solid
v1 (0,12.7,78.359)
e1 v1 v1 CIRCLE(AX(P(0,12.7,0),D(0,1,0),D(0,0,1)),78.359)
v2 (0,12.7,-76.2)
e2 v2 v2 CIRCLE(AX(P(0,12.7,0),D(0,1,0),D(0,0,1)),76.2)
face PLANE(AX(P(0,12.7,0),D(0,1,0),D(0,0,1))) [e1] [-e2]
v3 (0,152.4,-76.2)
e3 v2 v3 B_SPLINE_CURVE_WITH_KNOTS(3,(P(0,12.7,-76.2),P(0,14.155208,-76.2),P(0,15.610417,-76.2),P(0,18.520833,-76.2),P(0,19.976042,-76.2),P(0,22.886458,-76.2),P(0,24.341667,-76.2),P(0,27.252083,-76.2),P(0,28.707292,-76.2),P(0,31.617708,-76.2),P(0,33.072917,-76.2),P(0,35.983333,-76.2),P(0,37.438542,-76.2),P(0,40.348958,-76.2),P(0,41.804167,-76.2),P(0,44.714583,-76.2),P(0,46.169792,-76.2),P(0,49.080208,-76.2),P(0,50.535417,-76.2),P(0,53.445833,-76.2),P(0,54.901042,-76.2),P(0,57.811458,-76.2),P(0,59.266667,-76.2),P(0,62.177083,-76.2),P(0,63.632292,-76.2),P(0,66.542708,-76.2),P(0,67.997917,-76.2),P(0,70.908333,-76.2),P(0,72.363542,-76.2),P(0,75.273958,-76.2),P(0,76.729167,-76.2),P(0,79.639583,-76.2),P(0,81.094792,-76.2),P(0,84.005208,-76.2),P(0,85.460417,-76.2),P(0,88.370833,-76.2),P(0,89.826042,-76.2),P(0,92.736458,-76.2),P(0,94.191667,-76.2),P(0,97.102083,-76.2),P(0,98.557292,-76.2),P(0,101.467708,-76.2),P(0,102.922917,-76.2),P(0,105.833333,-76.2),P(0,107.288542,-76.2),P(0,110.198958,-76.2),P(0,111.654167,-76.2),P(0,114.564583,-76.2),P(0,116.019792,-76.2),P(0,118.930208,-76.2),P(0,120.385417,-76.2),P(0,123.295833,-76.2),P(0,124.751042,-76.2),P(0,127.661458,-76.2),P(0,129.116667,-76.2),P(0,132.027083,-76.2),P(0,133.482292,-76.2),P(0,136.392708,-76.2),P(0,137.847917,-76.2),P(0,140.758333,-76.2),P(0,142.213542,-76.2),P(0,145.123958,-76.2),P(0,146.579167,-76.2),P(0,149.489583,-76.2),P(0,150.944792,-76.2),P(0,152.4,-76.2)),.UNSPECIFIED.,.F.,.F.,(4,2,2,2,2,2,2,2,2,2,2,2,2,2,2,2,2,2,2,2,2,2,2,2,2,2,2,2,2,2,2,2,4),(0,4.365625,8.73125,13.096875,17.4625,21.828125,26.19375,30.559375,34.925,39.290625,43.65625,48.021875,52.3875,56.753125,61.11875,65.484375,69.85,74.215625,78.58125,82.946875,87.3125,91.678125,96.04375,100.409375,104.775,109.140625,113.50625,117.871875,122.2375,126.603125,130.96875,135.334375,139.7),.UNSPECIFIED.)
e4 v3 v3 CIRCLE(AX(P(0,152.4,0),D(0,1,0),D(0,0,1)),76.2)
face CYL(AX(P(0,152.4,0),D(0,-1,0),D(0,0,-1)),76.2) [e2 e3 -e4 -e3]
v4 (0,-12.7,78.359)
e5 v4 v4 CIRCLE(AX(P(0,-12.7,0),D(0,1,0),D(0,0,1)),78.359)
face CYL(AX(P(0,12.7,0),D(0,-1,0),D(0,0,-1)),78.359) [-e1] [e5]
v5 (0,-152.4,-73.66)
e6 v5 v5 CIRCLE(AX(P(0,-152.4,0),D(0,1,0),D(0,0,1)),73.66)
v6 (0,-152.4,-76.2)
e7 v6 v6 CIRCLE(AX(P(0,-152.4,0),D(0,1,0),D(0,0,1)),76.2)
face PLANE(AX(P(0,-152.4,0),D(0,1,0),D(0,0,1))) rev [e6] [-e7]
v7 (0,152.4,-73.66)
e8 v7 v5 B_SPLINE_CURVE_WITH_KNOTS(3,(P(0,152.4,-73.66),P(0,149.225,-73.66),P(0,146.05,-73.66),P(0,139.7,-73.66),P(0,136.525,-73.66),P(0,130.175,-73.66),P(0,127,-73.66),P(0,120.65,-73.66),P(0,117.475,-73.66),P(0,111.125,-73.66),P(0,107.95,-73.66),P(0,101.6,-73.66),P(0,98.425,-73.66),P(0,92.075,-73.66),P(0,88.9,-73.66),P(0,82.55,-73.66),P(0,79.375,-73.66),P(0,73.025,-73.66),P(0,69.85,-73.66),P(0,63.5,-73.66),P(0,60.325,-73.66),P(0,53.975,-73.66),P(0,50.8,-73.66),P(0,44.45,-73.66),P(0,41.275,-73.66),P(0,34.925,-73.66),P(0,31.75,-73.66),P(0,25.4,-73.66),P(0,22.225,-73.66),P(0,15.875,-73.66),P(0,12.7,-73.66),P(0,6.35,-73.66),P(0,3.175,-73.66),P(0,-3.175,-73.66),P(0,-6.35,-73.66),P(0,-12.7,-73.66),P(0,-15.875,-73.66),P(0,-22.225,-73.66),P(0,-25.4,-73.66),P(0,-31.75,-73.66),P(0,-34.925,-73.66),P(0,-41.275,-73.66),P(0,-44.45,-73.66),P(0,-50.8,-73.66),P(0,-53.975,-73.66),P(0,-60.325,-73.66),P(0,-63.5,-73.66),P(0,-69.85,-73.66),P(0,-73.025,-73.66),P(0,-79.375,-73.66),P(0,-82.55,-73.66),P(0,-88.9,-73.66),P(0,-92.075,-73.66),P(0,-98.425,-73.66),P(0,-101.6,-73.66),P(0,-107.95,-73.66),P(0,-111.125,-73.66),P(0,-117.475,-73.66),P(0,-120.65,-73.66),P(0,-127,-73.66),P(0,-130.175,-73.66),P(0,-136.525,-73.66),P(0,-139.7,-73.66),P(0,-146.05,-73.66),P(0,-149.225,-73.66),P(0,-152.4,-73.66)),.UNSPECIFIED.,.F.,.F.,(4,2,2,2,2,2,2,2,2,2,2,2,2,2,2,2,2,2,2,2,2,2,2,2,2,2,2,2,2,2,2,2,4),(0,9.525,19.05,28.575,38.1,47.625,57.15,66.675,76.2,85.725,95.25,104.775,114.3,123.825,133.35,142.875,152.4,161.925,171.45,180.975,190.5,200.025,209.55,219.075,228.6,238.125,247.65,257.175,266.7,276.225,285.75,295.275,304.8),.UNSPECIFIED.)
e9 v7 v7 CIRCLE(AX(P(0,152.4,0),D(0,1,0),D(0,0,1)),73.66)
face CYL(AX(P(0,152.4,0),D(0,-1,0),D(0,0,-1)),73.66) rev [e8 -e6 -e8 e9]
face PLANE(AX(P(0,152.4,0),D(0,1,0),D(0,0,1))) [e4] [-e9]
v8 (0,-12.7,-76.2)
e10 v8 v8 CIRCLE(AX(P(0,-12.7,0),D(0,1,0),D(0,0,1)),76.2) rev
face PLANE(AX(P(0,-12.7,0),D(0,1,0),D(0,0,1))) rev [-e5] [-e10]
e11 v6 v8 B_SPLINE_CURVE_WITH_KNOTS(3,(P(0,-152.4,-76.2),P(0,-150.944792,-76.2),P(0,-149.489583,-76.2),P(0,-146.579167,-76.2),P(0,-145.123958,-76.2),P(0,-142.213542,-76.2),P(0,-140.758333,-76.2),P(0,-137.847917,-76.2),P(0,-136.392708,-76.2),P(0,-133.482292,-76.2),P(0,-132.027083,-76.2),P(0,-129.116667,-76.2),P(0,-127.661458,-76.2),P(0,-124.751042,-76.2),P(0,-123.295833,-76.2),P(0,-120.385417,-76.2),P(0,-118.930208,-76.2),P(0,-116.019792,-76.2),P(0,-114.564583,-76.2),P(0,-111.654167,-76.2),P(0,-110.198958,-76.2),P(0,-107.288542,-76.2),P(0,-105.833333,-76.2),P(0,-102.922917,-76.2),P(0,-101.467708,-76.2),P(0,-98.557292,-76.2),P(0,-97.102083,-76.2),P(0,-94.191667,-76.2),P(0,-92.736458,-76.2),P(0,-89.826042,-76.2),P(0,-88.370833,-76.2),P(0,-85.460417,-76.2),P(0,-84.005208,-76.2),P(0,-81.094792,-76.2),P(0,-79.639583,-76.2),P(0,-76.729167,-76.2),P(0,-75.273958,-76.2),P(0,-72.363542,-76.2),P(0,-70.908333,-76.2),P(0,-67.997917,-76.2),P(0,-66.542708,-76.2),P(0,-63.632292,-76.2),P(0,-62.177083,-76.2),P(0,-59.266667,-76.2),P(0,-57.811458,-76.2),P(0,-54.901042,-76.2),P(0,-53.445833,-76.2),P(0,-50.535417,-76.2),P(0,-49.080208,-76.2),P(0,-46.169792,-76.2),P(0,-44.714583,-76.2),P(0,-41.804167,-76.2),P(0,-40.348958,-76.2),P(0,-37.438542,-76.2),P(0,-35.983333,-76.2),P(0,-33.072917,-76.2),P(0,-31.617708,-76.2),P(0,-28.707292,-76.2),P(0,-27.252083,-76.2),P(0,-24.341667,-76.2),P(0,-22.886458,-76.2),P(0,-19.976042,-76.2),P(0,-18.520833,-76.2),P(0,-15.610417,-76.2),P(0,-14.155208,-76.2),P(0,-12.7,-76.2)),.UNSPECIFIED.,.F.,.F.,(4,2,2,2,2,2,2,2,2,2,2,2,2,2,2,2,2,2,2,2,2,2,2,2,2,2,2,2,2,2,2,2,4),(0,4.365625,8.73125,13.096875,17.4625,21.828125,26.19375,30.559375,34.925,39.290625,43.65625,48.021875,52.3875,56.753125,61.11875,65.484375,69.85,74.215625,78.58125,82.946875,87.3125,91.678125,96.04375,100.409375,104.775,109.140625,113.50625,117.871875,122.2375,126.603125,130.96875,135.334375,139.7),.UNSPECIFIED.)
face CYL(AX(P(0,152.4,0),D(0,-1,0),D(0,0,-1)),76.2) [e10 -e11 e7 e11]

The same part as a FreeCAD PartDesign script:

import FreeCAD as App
import Part
import Sketcher
from FreeCAD import Vector
Q = App.Units.Quantity

doc = App.newDocument("Part")
params = doc.addObject("Spreadsheet::Sheet", "Params")
for row, (alias, value) in enumerate([
    ("sketch1_diameter", "6 in"),
    ("sketch1_diameter2", "6.17 in"),
    ("pad1_length", "1 in"),
    ("sketch2_diameter", "6 in"),
    ("sketch2_diameter2", "5.8 in"),
    ("pad2_length", "12 in"),
], start=1):
    params.set(f"A{row}", alias)
    params.set(f"B{row}", "=" + value)
    params.setAlias(f"B{row}", alias)

body = doc.addObject("PartDesign::Body", "Body")

sketch1 = body.newObject("Sketcher::SketchObject", "Sketch")
sketch1.AttachmentSupport = (doc.getObject("XZ_Plane"), [""])
sketch1.MapMode = "FlatFace"
sketch1.addGeometry(Part.Circle(Vector(0, 0, 0), Vector(0, 0, 1), 78), False)
sketch1.addGeometry(Part.Circle(Vector(0, 0, 0), Vector(0, 0, 1), 76), False)
sketch1.addConstraint(Sketcher.Constraint("Coincident", 0, 3, -1, 1))
sketch1.addConstraint(Sketcher.Constraint("Coincident", 1, 3, -1, 1))
sketch1.addConstraint(Sketcher.Constraint("Diameter", 1, Q("6 in")))
sketch1.addConstraint(Sketcher.Constraint("Diameter", 0, Q("6.17 in")))
sketch1.setExpression("Constraints[2]", "Params.sketch1_diameter")
sketch1.setExpression("Constraints[3]", "Params.sketch1_diameter2")
pad1 = body.newObject("PartDesign::Pad", "Pad")
pad1.Profile = sketch1
pad1.setExpression("Length", "Params.pad1_length")
pad1.Midplane = True

sketch2 = body.newObject("Sketcher::SketchObject", "Sketch001")
sketch2.AttachmentSupport = (doc.getObject("XZ_Plane"), [""])
sketch2.MapMode = "FlatFace"
sketch2.addGeometry(Part.Circle(Vector(0, 0, 0), Vector(0, 0, 1), 76), False)
sketch2.addGeometry(Part.Circle(Vector(0, 0, 0), Vector(0, 0, 1), 74), False)
sketch2.addConstraint(Sketcher.Constraint("Coincident", 0, 3, -1, 1))
sketch2.addConstraint(Sketcher.Constraint("Coincident", 1, 3, -1, 1))
sketch2.addConstraint(Sketcher.Constraint("Diameter", 0, Q("6 in")))
sketch2.addConstraint(Sketcher.Constraint("Diameter", 1, Q("5.8 in")))
sketch2.setExpression("Constraints[2]", "Params.sketch2_diameter")
sketch2.setExpression("Constraints[3]", "Params.sketch2_diameter2")
pad2 = body.newObject("PartDesign::Pad", "Pad001")
pad2.Profile = sketch2
pad2.setExpression("Length", "Params.pad2_length")
pad2.Midplane = True

doc.recompute()
